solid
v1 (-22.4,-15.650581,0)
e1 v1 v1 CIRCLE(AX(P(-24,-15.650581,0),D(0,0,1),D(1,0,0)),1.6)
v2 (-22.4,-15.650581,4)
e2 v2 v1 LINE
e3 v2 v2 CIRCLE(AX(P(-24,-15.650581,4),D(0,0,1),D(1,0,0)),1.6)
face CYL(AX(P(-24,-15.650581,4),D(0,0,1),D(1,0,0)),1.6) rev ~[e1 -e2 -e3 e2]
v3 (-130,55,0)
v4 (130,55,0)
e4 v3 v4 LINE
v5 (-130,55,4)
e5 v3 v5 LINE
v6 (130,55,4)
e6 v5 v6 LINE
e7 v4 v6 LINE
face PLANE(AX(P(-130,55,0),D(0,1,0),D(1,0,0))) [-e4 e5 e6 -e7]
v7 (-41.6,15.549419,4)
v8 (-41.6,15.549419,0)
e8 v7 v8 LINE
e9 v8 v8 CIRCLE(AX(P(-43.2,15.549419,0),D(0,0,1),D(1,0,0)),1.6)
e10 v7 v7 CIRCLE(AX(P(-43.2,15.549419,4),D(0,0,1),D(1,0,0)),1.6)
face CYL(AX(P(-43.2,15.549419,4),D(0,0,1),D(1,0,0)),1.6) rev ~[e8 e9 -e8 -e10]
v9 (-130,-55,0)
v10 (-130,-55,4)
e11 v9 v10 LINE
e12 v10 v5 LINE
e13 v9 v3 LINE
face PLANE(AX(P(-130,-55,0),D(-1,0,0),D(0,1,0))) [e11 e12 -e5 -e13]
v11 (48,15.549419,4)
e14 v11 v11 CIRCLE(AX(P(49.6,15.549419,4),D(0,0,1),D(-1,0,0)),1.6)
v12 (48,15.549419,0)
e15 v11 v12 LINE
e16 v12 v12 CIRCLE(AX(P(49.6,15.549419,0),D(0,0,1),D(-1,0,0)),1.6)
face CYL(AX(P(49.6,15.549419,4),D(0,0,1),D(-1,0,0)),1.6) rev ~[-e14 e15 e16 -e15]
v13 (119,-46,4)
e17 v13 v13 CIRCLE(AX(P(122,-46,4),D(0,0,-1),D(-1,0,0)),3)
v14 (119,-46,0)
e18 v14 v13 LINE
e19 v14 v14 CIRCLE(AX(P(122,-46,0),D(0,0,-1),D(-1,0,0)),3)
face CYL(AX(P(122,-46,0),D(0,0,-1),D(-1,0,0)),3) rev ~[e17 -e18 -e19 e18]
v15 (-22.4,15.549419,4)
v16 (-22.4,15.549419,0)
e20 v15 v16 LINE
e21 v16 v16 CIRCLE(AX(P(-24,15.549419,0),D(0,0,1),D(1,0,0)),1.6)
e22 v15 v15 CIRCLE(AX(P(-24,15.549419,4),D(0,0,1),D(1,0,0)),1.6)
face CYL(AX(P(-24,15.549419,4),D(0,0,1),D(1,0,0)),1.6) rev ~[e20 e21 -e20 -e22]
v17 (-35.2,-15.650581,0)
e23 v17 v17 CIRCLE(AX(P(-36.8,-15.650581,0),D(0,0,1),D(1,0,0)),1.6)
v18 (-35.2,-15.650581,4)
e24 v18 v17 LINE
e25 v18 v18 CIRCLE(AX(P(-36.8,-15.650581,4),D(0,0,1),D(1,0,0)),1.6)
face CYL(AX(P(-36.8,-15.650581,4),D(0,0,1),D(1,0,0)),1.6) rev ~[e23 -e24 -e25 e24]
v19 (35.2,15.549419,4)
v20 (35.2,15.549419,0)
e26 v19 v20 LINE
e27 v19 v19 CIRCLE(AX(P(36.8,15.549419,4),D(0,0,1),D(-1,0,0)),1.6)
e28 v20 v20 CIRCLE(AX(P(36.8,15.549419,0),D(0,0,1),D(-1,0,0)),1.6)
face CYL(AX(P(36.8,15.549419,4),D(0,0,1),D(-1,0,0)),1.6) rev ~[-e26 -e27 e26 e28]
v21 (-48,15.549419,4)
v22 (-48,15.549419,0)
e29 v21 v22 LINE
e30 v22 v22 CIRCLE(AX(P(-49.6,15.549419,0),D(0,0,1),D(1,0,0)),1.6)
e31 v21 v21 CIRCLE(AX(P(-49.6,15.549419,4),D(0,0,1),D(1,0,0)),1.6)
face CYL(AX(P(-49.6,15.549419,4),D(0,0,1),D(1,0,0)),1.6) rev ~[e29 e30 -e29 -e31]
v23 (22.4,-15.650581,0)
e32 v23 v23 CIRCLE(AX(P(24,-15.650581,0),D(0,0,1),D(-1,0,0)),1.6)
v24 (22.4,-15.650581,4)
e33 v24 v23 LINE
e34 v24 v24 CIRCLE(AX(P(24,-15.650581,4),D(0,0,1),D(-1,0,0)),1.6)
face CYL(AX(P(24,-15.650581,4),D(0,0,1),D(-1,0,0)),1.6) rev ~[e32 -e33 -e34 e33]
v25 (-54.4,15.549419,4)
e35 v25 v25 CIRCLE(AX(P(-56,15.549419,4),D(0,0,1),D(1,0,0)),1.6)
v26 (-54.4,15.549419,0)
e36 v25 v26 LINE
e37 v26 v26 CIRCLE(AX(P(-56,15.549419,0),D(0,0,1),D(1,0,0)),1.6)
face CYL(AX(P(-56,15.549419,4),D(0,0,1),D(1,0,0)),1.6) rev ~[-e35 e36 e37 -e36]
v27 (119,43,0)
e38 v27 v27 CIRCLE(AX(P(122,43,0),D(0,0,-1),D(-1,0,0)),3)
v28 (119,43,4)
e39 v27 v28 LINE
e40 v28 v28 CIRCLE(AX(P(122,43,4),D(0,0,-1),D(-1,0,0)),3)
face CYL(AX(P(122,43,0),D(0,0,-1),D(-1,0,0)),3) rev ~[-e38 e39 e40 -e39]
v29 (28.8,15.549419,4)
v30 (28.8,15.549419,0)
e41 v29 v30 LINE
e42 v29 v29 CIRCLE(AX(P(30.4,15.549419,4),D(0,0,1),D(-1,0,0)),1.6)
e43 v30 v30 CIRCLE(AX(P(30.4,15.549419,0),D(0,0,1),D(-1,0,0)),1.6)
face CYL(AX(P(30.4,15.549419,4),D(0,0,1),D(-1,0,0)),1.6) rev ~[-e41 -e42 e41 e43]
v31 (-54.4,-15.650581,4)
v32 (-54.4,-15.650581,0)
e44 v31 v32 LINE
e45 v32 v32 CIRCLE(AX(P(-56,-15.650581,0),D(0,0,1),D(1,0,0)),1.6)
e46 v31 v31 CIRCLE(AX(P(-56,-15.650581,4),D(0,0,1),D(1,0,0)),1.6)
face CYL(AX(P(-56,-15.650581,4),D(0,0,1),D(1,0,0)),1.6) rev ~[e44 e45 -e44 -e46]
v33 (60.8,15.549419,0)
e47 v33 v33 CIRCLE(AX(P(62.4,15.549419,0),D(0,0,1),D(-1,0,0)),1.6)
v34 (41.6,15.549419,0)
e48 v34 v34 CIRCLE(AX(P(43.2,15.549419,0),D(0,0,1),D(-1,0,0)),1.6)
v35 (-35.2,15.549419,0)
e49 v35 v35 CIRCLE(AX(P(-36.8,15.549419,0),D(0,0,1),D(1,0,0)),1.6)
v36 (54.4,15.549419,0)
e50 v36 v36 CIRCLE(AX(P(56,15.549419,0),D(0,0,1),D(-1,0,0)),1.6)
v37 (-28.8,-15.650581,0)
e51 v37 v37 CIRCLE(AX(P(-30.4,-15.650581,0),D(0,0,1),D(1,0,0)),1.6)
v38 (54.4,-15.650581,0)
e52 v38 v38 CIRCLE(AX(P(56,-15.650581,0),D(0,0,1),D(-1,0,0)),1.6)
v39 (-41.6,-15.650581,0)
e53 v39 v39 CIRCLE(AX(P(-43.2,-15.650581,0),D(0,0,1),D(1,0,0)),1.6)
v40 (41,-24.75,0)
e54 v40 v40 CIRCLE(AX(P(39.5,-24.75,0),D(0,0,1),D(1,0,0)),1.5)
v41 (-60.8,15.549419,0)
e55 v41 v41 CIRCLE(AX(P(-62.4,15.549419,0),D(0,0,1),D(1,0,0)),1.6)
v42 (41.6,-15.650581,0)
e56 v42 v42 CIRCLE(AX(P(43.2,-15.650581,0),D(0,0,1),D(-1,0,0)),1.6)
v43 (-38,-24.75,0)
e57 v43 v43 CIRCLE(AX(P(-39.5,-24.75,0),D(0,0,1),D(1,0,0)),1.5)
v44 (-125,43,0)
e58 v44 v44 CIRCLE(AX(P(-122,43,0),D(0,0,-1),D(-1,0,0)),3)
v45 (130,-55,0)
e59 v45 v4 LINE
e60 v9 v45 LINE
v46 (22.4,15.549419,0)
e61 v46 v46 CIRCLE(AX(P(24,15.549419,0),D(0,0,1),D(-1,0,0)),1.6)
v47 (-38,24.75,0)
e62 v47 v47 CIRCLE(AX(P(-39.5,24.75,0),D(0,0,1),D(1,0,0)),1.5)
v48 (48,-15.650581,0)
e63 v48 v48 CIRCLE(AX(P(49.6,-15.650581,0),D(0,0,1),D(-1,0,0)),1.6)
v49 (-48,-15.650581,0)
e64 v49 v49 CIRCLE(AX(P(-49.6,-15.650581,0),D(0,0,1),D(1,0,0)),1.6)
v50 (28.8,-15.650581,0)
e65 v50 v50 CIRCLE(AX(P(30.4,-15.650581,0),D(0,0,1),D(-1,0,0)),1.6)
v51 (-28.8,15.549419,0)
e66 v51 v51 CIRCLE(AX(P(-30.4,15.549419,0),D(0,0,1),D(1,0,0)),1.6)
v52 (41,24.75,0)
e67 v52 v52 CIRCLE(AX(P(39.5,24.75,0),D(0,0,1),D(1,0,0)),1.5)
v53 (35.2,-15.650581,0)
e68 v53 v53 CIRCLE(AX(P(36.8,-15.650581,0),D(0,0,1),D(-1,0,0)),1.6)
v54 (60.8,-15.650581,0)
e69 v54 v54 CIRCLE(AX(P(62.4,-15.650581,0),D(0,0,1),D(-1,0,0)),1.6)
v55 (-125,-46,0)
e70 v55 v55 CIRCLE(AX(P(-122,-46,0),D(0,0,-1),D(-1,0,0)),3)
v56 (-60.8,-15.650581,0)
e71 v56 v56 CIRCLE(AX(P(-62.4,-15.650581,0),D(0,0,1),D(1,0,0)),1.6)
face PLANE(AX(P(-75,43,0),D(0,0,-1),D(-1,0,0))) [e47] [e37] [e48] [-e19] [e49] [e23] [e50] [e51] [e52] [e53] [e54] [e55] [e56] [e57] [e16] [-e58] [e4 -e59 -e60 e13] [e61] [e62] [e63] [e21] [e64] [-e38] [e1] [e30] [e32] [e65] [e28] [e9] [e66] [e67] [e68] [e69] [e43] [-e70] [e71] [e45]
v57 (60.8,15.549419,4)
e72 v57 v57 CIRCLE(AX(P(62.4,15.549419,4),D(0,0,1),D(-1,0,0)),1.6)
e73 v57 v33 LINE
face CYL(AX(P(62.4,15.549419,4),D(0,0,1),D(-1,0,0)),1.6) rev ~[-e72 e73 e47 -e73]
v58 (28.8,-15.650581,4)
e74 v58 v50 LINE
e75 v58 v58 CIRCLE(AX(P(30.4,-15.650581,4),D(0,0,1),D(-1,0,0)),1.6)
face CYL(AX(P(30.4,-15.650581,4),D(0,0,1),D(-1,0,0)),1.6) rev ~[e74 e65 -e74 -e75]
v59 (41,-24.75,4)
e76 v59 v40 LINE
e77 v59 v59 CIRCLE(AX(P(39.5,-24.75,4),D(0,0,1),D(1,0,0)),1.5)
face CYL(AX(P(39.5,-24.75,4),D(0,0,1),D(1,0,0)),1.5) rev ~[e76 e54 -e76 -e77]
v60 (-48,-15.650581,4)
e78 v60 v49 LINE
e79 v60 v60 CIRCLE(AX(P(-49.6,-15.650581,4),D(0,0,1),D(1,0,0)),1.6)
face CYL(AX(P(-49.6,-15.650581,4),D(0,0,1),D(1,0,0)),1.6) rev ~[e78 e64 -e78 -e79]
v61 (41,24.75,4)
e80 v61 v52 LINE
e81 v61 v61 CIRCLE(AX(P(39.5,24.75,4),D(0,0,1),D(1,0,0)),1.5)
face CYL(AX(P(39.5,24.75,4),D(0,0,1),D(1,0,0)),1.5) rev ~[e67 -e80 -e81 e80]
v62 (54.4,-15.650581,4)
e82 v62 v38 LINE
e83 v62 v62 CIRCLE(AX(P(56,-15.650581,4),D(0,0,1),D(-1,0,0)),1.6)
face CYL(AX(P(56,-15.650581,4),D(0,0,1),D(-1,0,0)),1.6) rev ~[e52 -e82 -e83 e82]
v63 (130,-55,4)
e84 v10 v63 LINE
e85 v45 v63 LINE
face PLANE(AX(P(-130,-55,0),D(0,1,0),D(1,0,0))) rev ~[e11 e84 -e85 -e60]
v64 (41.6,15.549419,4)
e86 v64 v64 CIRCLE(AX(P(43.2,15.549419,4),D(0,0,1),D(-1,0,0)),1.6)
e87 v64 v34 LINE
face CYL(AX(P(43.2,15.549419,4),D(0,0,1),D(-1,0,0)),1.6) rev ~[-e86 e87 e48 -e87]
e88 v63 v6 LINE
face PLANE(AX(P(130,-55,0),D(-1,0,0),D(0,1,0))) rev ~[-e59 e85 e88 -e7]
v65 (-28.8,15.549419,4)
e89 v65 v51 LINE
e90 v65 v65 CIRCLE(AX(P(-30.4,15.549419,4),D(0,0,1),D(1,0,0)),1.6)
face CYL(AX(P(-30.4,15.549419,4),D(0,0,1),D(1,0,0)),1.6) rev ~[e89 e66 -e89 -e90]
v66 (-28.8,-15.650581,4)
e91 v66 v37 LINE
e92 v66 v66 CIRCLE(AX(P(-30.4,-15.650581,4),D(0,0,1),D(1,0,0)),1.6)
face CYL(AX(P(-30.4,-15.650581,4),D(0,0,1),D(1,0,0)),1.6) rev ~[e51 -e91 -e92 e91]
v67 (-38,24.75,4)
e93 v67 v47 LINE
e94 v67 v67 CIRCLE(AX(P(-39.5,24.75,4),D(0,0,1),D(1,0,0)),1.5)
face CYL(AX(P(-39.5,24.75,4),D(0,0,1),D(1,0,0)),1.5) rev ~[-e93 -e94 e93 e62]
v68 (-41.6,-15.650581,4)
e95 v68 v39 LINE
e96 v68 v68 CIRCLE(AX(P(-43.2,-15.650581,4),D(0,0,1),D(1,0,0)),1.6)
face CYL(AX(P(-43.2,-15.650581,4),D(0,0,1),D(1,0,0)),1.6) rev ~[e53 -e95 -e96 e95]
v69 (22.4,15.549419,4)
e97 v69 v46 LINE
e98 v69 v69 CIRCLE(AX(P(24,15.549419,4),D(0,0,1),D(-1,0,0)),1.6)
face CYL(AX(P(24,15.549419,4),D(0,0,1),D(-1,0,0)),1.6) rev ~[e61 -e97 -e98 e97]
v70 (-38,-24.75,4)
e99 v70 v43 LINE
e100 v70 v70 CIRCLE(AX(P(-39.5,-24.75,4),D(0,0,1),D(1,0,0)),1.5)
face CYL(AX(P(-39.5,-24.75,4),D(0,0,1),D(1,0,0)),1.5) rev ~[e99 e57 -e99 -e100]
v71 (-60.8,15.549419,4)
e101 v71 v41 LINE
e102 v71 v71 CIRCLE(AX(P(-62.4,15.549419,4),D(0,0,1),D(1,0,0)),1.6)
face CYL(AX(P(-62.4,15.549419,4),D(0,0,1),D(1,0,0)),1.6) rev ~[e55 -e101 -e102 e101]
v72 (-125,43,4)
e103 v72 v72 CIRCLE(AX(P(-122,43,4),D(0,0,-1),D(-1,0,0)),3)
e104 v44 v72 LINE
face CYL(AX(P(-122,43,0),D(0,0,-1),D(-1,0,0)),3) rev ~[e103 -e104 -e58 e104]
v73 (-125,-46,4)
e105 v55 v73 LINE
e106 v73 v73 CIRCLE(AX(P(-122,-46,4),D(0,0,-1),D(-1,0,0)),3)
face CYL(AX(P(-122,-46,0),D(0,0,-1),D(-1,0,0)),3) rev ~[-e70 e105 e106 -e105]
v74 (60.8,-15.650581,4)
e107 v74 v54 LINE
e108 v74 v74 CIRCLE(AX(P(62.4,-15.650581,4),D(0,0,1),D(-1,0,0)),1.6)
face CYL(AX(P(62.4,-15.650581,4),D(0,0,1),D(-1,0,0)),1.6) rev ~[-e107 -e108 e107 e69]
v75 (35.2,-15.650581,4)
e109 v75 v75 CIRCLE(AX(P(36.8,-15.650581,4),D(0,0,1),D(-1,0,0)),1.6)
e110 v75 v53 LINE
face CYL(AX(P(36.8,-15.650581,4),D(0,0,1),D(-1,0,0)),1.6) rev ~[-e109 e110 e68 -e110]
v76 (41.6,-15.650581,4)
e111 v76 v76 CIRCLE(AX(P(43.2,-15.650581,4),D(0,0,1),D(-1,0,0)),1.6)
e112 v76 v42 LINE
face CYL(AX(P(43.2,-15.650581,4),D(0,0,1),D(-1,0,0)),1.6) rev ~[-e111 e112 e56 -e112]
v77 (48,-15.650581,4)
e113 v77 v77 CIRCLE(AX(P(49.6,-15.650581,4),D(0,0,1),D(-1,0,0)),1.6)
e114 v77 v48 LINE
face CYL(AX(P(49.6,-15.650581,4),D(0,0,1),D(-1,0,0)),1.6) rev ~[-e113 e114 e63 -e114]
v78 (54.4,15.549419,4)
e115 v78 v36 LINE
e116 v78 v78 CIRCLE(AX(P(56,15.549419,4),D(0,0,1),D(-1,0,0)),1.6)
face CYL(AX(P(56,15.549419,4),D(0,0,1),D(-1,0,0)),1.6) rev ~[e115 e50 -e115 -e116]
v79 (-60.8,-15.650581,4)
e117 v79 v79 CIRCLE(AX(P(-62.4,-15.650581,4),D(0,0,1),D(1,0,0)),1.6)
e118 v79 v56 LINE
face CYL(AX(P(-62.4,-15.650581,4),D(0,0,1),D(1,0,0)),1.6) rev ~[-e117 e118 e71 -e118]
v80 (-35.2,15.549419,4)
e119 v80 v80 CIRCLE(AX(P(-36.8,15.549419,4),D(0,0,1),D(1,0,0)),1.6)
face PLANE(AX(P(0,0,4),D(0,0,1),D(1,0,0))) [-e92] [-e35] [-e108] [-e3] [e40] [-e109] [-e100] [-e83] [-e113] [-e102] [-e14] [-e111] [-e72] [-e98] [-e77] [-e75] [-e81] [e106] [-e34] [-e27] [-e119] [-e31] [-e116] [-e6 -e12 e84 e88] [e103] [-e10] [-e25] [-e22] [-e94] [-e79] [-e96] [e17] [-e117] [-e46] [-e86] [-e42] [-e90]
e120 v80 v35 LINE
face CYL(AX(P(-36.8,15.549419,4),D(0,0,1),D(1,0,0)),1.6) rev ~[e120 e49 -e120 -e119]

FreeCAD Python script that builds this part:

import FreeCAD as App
import Part
import Sketcher
Q = App.Units.Quantity

doc = App.newDocument("Part")
body = doc.addObject("PartDesign::Body", "Body")

sketch1 = body.newObject("Sketcher::SketchObject", "Sketch")
sketch1.AttachmentSupport = (doc.getObject("XY_Plane"), [""])
sketch1.MapMode = "FlatFace"
sketch1.addGeometry([
    Part.LineSegment(App.Vector(-130, 55, 0), App.Vector(-130, -55, 0)),
    Part.LineSegment(App.Vector(-130, -55, 0), App.Vector(130, -55, 0)),
    Part.LineSegment(App.Vector(130, -55, 0), App.Vector(130, 55, 0)),
    Part.LineSegment(App.Vector(130, 55, 0), App.Vector(-130, 55, 0)),
], False)
sketch1.addConstraint([
    Sketcher.Constraint("Coincident", 0, 2, 1, 1),
    Sketcher.Constraint("Coincident", 1, 2, 2, 1),
    Sketcher.Constraint("Coincident", 2, 2, 3, 1),
    Sketcher.Constraint("Coincident", 3, 2, 0, 1),
    Sketcher.Constraint("Vertical", 0),
    Sketcher.Constraint("Horizontal", 1),
    Sketcher.Constraint("Vertical", 2),
    Sketcher.Constraint("Horizontal", 3),
    Sketcher.Constraint("Symmetric", 0, 2, 2, 2, -1, 1),
    Sketcher.Constraint("DistanceX", 1, 1, 1, 2, Q("260 mm")),
    Sketcher.Constraint("DistanceY", 0, 2, 0, 1, Q("110 mm")),
])
pad1 = body.newObject("PartDesign::Pad", "Pad")
pad1.Profile = sketch1
pad1.Length = 4

sketch2 = body.newObject("Sketcher::SketchObject", "Sketch001")
sketch2.AttachmentSupport = (doc.getObject("XY_Plane"), [""])
sketch2.MapMode = "FlatFace"
sketch2.addGeometry([
    Part.Circle(App.Vector(122, 43, 0), App.Vector(0, 0, 1), 3),
    Part.Circle(App.Vector(-122, 43, 0), App.Vector(0, 0, 1), 3),
    Part.Circle(App.Vector(-75, 43, 0), App.Vector(0, 0, 1), 3),
    Part.Circle(App.Vector(-122, -46, 0), App.Vector(0, 0, 1), 3),
    Part.Circle(App.Vector(75, 43, 0), App.Vector(0, 0, 1), 3),
    Part.Circle(App.Vector(122, -46, 0), App.Vector(0, 0, 1), 3),
], False)
sketch2.addConstraint([
    Sketcher.Constraint("Equal", 0, 1),
    Sketcher.Constraint("Equal", 1, 2),
    Sketcher.Constraint("Equal", 2, 3),
    Sketcher.Constraint("Equal", 3, 4),
    Sketcher.Constraint("Equal", 4, 5),
    Sketcher.Constraint("Symmetric", 0, 3, 1, 3, -2),
    Sketcher.Constraint("Symmetric", 2, 3, 4, 3, -2),
    Sketcher.Constraint("Symmetric", 3, 3, 5, 3, -2),
    Sketcher.Constraint("Horizontal", 1, 3, 2, 3),
    Sketcher.Constraint("Vertical", 1, 3, 3, 3),
    Sketcher.Constraint("Diameter", 0, Q("6 mm")),
    Sketcher.Constraint("DistanceX", -1, 1, 0, 3, Q("122 mm")),
    Sketcher.Constraint("DistanceY", -1, 1, 0, 3, Q("43 mm")),
    Sketcher.Constraint("DistanceX", 2, 3, -1, 1, Q("75 mm")),
    Sketcher.Constraint("DistanceY", 3, 3, -1, 1, Q("46 mm")),
])
pocket1 = body.newObject("PartDesign::Pocket", "Pocket")
pocket1.Profile = sketch2
pocket1.Type = "ThroughAll"
pocket1.Reversed = True

sketch3 = body.newObject("Sketcher::SketchObject", "Sketch002")
sketch3.AttachmentSupport = (doc.getObject("XY_Plane"), [""])
sketch3.MapMode = "FlatFace"
sketch3.AttachmentOffset = App.Placement(App.Vector(0, 0, 4), App.Rotation())
sketch3.addGeometry([
    Part.Circle(App.Vector(-39.5, 24.8, 0), App.Vector(0, 0, 1), 1.5),
    Part.Circle(App.Vector(39.5, 24.8, 0), App.Vector(0, 0, 1), 1.5),
    Part.Circle(App.Vector(39.5, -24.8, 0), App.Vector(0, 0, 1), 1.5),
    Part.Circle(App.Vector(-39.5, -24.8, 0), App.Vector(0, 0, 1), 1.5),
], False)
sketch3.addConstraint([
    Sketcher.Constraint("Equal", 0, 1),
    Sketcher.Constraint("Equal", 1, 2),
    Sketcher.Constraint("Equal", 2, 3),
    Sketcher.Constraint("Symmetric", 0, 3, 2, 3, -1, 1),
    Sketcher.Constraint("Symmetric", 1, 3, 3, 3, -1, 1),
    Sketcher.Constraint("Symmetric", 0, 3, 1, 3, -2),
    Sketcher.Constraint("Diameter", 0, Q("3 mm")),
    Sketcher.Constraint("DistanceX", 0, 3, 1, 3, Q("79 mm")),
    Sketcher.Constraint("DistanceY", 2, 3, 1, 3, Q("49.5 mm")),
])
pocket2 = body.newObject("PartDesign::Pocket", "Pocket001")
pocket2.Profile = sketch3
pocket2.Type = "ThroughAll"

sketch4 = body.newObject("Sketcher::SketchObject", "Sketch003")
sketch4.AttachmentSupport = (doc.getObject("XY_Plane"), [""])
sketch4.MapMode = "FlatFace"
sketch4.AttachmentOffset = App.Placement(App.Vector(0, 0, 4), App.Rotation())
sketch4.addGeometry([
    Part.Circle(App.Vector(-24, 15.5, 0), App.Vector(0, 0, 1), 1.6),
    Part.Circle(App.Vector(-30.4, 15.5, 0), App.Vector(0, 0, 1), 1.6),
    Part.Circle(App.Vector(-36.8, 15.5, 0), App.Vector(0, 0, 1), 1.6),
    Part.Circle(App.Vector(-43.2, 15.5, 0), App.Vector(0, 0, 1), 1.6),
    Part.Circle(App.Vector(-49.6, 15.5, 0), App.Vector(0, 0, 1), 1.6),
    Part.Circle(App.Vector(-56, 15.5, 0), App.Vector(0, 0, 1), 1.6),
    Part.Circle(App.Vector(-62.4, 15.5, 0), App.Vector(0, 0, 1), 1.6),
    Part.Circle(App.Vector(-62.4, -15.7, 0), App.Vector(0, 0, 1), 1.6),
    Part.Circle(App.Vector(-56, -15.7, 0), App.Vector(0, 0, 1), 1.6),
    Part.Circle(App.Vector(-49.6, -15.7, 0), App.Vector(0, 0, 1), 1.6),
    Part.Circle(App.Vector(-43.2, -15.7, 0), App.Vector(0, 0, 1), 1.6),
    Part.Circle(App.Vector(-36.8, -15.7, 0), App.Vector(0, 0, 1), 1.6),
    Part.Circle(App.Vector(-30.4, -15.7, 0), App.Vector(0, 0, 1), 1.6),
    Part.Circle(App.Vector(-24, -15.7, 0), App.Vector(0, 0, 1), 1.6),
    Part.Circle(App.Vector(24, -15.7, 0), App.Vector(0, 0, 1), 1.6),
    Part.Circle(App.Vector(30.4, -15.7, 0), App.Vector(0, 0, 1), 1.6),
    Part.Circle(App.Vector(36.8, -15.7, 0), App.Vector(0, 0, 1), 1.6),
    Part.Circle(App.Vector(43.2, -15.7, 0), App.Vector(0, 0, 1), 1.6),
    Part.Circle(App.Vector(49.6, -15.7, 0), App.Vector(0, 0, 1), 1.6),
    Part.Circle(App.Vector(56, -15.7, 0), App.Vector(0, 0, 1), 1.6),
    Part.Circle(App.Vector(62.4, -15.7, 0), App.Vector(0, 0, 1), 1.6),
    Part.Circle(App.Vector(62.4, 15.5, 0), App.Vector(0, 0, 1), 1.6),
    Part.Circle(App.Vector(56, 15.5, 0), App.Vector(0, 0, 1), 1.6),
    Part.Circle(App.Vector(49.6, 15.5, 0), App.Vector(0, 0, 1), 1.6),
    Part.Circle(App.Vector(43.2, 15.5, 0), App.Vector(0, 0, 1), 1.6),
    Part.Circle(App.Vector(36.8, 15.5, 0), App.Vector(0, 0, 1), 1.6),
    Part.Circle(App.Vector(30.4, 15.5, 0), App.Vector(0, 0, 1), 1.6),
    Part.Circle(App.Vector(24, 15.5, 0), App.Vector(0, 0, 1), 1.6),
], False)
sketch4.addConstraint([
    Sketcher.Constraint("Equal", 0, 1),
    Sketcher.Constraint("Equal", 1, 2),
    Sketcher.Constraint("Equal", 2, 3),
    Sketcher.Constraint("Equal", 3, 4),
    Sketcher.Constraint("Equal", 4, 5),
    Sketcher.Constraint("Equal", 5, 6),
    Sketcher.Constraint("Equal", 6, 7),
    Sketcher.Constraint("Equal", 7, 8),
    Sketcher.Constraint("Equal", 8, 9),
    Sketcher.Constraint("Equal", 9, 10),
    Sketcher.Constraint("Equal", 10, 11),
    Sketcher.Constraint("Equal", 11, 12),
    Sketcher.Constraint("Equal", 12, 13),
    Sketcher.Constraint("Equal", 13, 14),
    Sketcher.Constraint("Equal", 14, 15),
    Sketcher.Constraint("Equal", 15, 16),
    Sketcher.Constraint("Equal", 16, 17),
    Sketcher.Constraint("Equal", 17, 18),
    Sketcher.Constraint("Equal", 18, 19),
    Sketcher.Constraint("Equal", 19, 20),
    Sketcher.Constraint("Equal", 20, 21),
    Sketcher.Constraint("Equal", 21, 22),
    Sketcher.Constraint("Equal", 22, 23),
    Sketcher.Constraint("Equal", 23, 24),
    Sketcher.Constraint("Equal", 24, 25),
    Sketcher.Constraint("Equal", 25, 26),
    Sketcher.Constraint("Equal", 26, 27),
    Sketcher.Constraint("Symmetric", 13, 3, 14, 3, -2),
    Sketcher.Constraint("Symmetric", 12, 3, 15, 3, -2),
    Sketcher.Constraint("Symmetric", 11, 3, 16, 3, -2),
    Sketcher.Constraint("Symmetric", 10, 3, 17, 3, -2),
    Sketcher.Constraint("Symmetric", 9, 3, 18, 3, -2),
    Sketcher.Constraint("Symmetric", 8, 3, 19, 3, -2),
    Sketcher.Constraint("Symmetric", 7, 3, 20, 3, -2),
    Sketcher.Constraint("Symmetric", 6, 3, 21, 3, -2),
    Sketcher.Constraint("Symmetric", 5, 3, 22, 3, -2),
    Sketcher.Constraint("Symmetric", 4, 3, 23, 3, -2),
    Sketcher.Constraint("Symmetric", 3, 3, 24, 3, -2),
    Sketcher.Constraint("Symmetric", 2, 3, 25, 3, -2),
    Sketcher.Constraint("Symmetric", 1, 3, 26, 3, -2),
    Sketcher.Constraint("Symmetric", 0, 3, 27, 3, -2),
    Sketcher.Constraint("Horizontal", 0, 3, 1, 3),
    Sketcher.Constraint("Horizontal", 1, 3, 2, 3),
    Sketcher.Constraint("Horizontal", 2, 3, 3, 3),
    Sketcher.Constraint("Horizontal", 3, 3, 4, 3),
    Sketcher.Constraint("Horizontal", 4, 3, 5, 3),
    Sketcher.Constraint("Horizontal", 5, 3, 6, 3),
    Sketcher.Constraint("Horizontal", 7, 3, 8, 3),
    Sketcher.Constraint("Horizontal", 8, 3, 9, 3),
    Sketcher.Constraint("Horizontal", 9, 3, 10, 3),
    Sketcher.Constraint("Horizontal", 10, 3, 11, 3),
    Sketcher.Constraint("Horizontal", 11, 3, 12, 3),
    Sketcher.Constraint("Horizontal", 12, 3, 13, 3),
    Sketcher.Constraint("Vertical", 6, 3, 7, 3),
    Sketcher.Constraint("Vertical", 5, 3, 8, 3),
    Sketcher.Constraint("Vertical", 4, 3, 9, 3),
    Sketcher.Constraint("Vertical", 3, 3, 10, 3),
    Sketcher.Constraint("Vertical", 2, 3, 11, 3),
    Sketcher.Constraint("Vertical", 1, 3, 12, 3),
    Sketcher.Constraint("Vertical", 0, 3, 13, 3),
    Sketcher.Constraint("Diameter", 0, Q("3.2 mm")),
    Sketcher.Constraint("DistanceX", 0, 3, -1, 1, Q("24 mm")),
    Sketcher.Constraint("DistanceX", 5, 3, -1, 1, Q("56 mm")),
    Sketcher.Constraint("DistanceX", 6, 3, 1, 3, Q("32 mm")),
    Sketcher.Constraint("DistanceX", 1, 3, -1, 1, Q("30.4 mm")),
    Sketcher.Constraint("DistanceX", 2, 3, -1, 1, Q("36.8 mm")),
    Sketcher.Constraint("DistanceX", 3, 3, -1, 1, Q("43.2 mm")),
    Sketcher.Constraint("DistanceX", 4, 3, -1, 1, Q("49.6 mm")),
    Sketcher.Constraint("DistanceY", 7, 3, 6, 3, Q("31.2 mm")),
    Sketcher.Constraint("DistanceY", -1, 1, 0, 3, Q("15.549419 mm")),
])
pocket3 = body.newObject("PartDesign::Pocket", "Pocket002")
pocket3.Profile = sketch4
pocket3.Type = "ThroughAll"

sketch5 = body.newObject("Sketcher::SketchObject", "Sketch004")
sketch5.AttachmentSupport = (doc.getObject("XY_Plane"), [""])
sketch5.MapMode = "FlatFace"
sketch5.addGeometry([
    Part.Circle(App.Vector(-75, 43, 0), App.Vector(0, 0, 1), 3),
    Part.Circle(App.Vector(75, 43, 0), App.Vector(0, 0, 1), 3),
], False)
sketch5.addConstraint([
    Sketcher.Constraint("Equal", 0, 1),
    Sketcher.Constraint("Symmetric", 0, 3, 1, 3, -2),
    Sketcher.Constraint("Diameter", 0, Q("6 mm")),
    Sketcher.Constraint("DistanceX", 0, 3, -1, 1, Q("75 mm")),
    Sketcher.Constraint("DistanceY", -1, 1, 0, 3, Q("43 mm")),
])
pad2 = body.newObject("PartDesign::Pad", "Pad001")
pad2.Profile = sketch5
pad2.Length = 4

doc.recompute()
